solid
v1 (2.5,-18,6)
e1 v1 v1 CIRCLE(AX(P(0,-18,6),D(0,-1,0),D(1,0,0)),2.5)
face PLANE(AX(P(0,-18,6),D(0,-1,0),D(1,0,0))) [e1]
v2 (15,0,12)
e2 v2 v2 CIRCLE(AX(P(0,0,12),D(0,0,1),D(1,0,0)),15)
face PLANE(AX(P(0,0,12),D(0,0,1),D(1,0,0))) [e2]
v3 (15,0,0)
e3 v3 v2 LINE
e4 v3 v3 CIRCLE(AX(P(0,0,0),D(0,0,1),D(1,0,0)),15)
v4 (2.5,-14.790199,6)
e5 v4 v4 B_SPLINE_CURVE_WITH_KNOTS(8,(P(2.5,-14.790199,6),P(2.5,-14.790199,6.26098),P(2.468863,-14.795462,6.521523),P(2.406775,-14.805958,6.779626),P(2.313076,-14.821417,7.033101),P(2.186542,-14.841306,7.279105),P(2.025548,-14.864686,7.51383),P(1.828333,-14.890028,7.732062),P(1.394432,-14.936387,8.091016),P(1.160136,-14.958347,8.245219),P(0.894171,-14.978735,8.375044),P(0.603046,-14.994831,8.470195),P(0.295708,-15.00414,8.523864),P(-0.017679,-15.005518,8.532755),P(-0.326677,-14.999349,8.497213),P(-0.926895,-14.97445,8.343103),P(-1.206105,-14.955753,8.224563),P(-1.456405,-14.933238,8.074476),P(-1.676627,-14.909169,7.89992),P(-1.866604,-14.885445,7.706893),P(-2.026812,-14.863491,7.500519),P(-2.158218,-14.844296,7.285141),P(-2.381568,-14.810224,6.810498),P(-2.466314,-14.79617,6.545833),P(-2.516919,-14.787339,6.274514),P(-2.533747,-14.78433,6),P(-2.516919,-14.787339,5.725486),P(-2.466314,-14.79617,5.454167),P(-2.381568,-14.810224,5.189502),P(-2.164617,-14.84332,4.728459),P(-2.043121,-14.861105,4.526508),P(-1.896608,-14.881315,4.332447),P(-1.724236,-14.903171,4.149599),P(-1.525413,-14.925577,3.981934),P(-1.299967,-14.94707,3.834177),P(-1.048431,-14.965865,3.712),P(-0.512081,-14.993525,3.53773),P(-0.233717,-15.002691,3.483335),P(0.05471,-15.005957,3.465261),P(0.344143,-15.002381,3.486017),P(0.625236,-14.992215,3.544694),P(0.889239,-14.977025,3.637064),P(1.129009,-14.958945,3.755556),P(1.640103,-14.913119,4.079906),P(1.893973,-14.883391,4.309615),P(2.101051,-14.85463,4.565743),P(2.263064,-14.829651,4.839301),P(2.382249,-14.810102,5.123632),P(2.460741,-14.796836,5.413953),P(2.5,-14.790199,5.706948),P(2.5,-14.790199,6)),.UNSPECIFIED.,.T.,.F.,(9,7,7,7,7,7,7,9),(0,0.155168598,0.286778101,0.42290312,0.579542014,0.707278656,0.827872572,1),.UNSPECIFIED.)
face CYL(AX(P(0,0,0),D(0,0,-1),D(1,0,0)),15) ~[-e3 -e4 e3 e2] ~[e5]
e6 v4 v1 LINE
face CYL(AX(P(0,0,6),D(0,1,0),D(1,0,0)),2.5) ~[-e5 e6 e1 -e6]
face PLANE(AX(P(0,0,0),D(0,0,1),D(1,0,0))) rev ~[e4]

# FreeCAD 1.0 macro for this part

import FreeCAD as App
import Part
import Sketcher
Q = App.Units.Quantity

doc = App.newDocument("Part")
body = doc.addObject("PartDesign::Body", "Body")

# Sketch on XY plane
sketch1 = body.newObject("Sketcher::SketchObject", "Sketch")
sketch1.AttachmentSupport = (doc.getObject("XY_Plane"), [""])
sketch1.MapMode = "FlatFace"
sketch1.addGeometry(Part.Circle(App.Vector(0, 0, 0), App.Vector(0, 0, 1), 15), False)
sketch1.addConstraint(Sketcher.Constraint("Coincident", 0, 3, -1, 1))
sketch1.addConstraint(Sketcher.Constraint("Diameter", 0, Q("30 mm")))
pad1 = body.newObject("PartDesign::Pad", "Pad")
pad1.Profile = sketch1
pad1.Length = 12

# Sketch on XZ plane
sketch2 = body.newObject("Sketcher::SketchObject", "Sketch001")
sketch2.AttachmentSupport = (doc.getObject("XZ_Plane"), [""])
sketch2.MapMode = "FlatFace"
sketch2.addGeometry(Part.Circle(App.Vector(0, 6, 0), App.Vector(0, 0, 1), 2.5), False)
sketch2.addConstraint(Sketcher.Constraint("PointOnObject", 0, 3, -2))
sketch2.addConstraint(Sketcher.Constraint("Diameter", 0, Q("5 mm")))
sketch2.addConstraint(Sketcher.Constraint("DistanceY", -1, 1, 0, 3, Q("6 mm")))
pad2 = body.newObject("PartDesign::Pad", "Pad001")
pad2.Profile = sketch2
pad2.Length = 18

doc.recompute()
